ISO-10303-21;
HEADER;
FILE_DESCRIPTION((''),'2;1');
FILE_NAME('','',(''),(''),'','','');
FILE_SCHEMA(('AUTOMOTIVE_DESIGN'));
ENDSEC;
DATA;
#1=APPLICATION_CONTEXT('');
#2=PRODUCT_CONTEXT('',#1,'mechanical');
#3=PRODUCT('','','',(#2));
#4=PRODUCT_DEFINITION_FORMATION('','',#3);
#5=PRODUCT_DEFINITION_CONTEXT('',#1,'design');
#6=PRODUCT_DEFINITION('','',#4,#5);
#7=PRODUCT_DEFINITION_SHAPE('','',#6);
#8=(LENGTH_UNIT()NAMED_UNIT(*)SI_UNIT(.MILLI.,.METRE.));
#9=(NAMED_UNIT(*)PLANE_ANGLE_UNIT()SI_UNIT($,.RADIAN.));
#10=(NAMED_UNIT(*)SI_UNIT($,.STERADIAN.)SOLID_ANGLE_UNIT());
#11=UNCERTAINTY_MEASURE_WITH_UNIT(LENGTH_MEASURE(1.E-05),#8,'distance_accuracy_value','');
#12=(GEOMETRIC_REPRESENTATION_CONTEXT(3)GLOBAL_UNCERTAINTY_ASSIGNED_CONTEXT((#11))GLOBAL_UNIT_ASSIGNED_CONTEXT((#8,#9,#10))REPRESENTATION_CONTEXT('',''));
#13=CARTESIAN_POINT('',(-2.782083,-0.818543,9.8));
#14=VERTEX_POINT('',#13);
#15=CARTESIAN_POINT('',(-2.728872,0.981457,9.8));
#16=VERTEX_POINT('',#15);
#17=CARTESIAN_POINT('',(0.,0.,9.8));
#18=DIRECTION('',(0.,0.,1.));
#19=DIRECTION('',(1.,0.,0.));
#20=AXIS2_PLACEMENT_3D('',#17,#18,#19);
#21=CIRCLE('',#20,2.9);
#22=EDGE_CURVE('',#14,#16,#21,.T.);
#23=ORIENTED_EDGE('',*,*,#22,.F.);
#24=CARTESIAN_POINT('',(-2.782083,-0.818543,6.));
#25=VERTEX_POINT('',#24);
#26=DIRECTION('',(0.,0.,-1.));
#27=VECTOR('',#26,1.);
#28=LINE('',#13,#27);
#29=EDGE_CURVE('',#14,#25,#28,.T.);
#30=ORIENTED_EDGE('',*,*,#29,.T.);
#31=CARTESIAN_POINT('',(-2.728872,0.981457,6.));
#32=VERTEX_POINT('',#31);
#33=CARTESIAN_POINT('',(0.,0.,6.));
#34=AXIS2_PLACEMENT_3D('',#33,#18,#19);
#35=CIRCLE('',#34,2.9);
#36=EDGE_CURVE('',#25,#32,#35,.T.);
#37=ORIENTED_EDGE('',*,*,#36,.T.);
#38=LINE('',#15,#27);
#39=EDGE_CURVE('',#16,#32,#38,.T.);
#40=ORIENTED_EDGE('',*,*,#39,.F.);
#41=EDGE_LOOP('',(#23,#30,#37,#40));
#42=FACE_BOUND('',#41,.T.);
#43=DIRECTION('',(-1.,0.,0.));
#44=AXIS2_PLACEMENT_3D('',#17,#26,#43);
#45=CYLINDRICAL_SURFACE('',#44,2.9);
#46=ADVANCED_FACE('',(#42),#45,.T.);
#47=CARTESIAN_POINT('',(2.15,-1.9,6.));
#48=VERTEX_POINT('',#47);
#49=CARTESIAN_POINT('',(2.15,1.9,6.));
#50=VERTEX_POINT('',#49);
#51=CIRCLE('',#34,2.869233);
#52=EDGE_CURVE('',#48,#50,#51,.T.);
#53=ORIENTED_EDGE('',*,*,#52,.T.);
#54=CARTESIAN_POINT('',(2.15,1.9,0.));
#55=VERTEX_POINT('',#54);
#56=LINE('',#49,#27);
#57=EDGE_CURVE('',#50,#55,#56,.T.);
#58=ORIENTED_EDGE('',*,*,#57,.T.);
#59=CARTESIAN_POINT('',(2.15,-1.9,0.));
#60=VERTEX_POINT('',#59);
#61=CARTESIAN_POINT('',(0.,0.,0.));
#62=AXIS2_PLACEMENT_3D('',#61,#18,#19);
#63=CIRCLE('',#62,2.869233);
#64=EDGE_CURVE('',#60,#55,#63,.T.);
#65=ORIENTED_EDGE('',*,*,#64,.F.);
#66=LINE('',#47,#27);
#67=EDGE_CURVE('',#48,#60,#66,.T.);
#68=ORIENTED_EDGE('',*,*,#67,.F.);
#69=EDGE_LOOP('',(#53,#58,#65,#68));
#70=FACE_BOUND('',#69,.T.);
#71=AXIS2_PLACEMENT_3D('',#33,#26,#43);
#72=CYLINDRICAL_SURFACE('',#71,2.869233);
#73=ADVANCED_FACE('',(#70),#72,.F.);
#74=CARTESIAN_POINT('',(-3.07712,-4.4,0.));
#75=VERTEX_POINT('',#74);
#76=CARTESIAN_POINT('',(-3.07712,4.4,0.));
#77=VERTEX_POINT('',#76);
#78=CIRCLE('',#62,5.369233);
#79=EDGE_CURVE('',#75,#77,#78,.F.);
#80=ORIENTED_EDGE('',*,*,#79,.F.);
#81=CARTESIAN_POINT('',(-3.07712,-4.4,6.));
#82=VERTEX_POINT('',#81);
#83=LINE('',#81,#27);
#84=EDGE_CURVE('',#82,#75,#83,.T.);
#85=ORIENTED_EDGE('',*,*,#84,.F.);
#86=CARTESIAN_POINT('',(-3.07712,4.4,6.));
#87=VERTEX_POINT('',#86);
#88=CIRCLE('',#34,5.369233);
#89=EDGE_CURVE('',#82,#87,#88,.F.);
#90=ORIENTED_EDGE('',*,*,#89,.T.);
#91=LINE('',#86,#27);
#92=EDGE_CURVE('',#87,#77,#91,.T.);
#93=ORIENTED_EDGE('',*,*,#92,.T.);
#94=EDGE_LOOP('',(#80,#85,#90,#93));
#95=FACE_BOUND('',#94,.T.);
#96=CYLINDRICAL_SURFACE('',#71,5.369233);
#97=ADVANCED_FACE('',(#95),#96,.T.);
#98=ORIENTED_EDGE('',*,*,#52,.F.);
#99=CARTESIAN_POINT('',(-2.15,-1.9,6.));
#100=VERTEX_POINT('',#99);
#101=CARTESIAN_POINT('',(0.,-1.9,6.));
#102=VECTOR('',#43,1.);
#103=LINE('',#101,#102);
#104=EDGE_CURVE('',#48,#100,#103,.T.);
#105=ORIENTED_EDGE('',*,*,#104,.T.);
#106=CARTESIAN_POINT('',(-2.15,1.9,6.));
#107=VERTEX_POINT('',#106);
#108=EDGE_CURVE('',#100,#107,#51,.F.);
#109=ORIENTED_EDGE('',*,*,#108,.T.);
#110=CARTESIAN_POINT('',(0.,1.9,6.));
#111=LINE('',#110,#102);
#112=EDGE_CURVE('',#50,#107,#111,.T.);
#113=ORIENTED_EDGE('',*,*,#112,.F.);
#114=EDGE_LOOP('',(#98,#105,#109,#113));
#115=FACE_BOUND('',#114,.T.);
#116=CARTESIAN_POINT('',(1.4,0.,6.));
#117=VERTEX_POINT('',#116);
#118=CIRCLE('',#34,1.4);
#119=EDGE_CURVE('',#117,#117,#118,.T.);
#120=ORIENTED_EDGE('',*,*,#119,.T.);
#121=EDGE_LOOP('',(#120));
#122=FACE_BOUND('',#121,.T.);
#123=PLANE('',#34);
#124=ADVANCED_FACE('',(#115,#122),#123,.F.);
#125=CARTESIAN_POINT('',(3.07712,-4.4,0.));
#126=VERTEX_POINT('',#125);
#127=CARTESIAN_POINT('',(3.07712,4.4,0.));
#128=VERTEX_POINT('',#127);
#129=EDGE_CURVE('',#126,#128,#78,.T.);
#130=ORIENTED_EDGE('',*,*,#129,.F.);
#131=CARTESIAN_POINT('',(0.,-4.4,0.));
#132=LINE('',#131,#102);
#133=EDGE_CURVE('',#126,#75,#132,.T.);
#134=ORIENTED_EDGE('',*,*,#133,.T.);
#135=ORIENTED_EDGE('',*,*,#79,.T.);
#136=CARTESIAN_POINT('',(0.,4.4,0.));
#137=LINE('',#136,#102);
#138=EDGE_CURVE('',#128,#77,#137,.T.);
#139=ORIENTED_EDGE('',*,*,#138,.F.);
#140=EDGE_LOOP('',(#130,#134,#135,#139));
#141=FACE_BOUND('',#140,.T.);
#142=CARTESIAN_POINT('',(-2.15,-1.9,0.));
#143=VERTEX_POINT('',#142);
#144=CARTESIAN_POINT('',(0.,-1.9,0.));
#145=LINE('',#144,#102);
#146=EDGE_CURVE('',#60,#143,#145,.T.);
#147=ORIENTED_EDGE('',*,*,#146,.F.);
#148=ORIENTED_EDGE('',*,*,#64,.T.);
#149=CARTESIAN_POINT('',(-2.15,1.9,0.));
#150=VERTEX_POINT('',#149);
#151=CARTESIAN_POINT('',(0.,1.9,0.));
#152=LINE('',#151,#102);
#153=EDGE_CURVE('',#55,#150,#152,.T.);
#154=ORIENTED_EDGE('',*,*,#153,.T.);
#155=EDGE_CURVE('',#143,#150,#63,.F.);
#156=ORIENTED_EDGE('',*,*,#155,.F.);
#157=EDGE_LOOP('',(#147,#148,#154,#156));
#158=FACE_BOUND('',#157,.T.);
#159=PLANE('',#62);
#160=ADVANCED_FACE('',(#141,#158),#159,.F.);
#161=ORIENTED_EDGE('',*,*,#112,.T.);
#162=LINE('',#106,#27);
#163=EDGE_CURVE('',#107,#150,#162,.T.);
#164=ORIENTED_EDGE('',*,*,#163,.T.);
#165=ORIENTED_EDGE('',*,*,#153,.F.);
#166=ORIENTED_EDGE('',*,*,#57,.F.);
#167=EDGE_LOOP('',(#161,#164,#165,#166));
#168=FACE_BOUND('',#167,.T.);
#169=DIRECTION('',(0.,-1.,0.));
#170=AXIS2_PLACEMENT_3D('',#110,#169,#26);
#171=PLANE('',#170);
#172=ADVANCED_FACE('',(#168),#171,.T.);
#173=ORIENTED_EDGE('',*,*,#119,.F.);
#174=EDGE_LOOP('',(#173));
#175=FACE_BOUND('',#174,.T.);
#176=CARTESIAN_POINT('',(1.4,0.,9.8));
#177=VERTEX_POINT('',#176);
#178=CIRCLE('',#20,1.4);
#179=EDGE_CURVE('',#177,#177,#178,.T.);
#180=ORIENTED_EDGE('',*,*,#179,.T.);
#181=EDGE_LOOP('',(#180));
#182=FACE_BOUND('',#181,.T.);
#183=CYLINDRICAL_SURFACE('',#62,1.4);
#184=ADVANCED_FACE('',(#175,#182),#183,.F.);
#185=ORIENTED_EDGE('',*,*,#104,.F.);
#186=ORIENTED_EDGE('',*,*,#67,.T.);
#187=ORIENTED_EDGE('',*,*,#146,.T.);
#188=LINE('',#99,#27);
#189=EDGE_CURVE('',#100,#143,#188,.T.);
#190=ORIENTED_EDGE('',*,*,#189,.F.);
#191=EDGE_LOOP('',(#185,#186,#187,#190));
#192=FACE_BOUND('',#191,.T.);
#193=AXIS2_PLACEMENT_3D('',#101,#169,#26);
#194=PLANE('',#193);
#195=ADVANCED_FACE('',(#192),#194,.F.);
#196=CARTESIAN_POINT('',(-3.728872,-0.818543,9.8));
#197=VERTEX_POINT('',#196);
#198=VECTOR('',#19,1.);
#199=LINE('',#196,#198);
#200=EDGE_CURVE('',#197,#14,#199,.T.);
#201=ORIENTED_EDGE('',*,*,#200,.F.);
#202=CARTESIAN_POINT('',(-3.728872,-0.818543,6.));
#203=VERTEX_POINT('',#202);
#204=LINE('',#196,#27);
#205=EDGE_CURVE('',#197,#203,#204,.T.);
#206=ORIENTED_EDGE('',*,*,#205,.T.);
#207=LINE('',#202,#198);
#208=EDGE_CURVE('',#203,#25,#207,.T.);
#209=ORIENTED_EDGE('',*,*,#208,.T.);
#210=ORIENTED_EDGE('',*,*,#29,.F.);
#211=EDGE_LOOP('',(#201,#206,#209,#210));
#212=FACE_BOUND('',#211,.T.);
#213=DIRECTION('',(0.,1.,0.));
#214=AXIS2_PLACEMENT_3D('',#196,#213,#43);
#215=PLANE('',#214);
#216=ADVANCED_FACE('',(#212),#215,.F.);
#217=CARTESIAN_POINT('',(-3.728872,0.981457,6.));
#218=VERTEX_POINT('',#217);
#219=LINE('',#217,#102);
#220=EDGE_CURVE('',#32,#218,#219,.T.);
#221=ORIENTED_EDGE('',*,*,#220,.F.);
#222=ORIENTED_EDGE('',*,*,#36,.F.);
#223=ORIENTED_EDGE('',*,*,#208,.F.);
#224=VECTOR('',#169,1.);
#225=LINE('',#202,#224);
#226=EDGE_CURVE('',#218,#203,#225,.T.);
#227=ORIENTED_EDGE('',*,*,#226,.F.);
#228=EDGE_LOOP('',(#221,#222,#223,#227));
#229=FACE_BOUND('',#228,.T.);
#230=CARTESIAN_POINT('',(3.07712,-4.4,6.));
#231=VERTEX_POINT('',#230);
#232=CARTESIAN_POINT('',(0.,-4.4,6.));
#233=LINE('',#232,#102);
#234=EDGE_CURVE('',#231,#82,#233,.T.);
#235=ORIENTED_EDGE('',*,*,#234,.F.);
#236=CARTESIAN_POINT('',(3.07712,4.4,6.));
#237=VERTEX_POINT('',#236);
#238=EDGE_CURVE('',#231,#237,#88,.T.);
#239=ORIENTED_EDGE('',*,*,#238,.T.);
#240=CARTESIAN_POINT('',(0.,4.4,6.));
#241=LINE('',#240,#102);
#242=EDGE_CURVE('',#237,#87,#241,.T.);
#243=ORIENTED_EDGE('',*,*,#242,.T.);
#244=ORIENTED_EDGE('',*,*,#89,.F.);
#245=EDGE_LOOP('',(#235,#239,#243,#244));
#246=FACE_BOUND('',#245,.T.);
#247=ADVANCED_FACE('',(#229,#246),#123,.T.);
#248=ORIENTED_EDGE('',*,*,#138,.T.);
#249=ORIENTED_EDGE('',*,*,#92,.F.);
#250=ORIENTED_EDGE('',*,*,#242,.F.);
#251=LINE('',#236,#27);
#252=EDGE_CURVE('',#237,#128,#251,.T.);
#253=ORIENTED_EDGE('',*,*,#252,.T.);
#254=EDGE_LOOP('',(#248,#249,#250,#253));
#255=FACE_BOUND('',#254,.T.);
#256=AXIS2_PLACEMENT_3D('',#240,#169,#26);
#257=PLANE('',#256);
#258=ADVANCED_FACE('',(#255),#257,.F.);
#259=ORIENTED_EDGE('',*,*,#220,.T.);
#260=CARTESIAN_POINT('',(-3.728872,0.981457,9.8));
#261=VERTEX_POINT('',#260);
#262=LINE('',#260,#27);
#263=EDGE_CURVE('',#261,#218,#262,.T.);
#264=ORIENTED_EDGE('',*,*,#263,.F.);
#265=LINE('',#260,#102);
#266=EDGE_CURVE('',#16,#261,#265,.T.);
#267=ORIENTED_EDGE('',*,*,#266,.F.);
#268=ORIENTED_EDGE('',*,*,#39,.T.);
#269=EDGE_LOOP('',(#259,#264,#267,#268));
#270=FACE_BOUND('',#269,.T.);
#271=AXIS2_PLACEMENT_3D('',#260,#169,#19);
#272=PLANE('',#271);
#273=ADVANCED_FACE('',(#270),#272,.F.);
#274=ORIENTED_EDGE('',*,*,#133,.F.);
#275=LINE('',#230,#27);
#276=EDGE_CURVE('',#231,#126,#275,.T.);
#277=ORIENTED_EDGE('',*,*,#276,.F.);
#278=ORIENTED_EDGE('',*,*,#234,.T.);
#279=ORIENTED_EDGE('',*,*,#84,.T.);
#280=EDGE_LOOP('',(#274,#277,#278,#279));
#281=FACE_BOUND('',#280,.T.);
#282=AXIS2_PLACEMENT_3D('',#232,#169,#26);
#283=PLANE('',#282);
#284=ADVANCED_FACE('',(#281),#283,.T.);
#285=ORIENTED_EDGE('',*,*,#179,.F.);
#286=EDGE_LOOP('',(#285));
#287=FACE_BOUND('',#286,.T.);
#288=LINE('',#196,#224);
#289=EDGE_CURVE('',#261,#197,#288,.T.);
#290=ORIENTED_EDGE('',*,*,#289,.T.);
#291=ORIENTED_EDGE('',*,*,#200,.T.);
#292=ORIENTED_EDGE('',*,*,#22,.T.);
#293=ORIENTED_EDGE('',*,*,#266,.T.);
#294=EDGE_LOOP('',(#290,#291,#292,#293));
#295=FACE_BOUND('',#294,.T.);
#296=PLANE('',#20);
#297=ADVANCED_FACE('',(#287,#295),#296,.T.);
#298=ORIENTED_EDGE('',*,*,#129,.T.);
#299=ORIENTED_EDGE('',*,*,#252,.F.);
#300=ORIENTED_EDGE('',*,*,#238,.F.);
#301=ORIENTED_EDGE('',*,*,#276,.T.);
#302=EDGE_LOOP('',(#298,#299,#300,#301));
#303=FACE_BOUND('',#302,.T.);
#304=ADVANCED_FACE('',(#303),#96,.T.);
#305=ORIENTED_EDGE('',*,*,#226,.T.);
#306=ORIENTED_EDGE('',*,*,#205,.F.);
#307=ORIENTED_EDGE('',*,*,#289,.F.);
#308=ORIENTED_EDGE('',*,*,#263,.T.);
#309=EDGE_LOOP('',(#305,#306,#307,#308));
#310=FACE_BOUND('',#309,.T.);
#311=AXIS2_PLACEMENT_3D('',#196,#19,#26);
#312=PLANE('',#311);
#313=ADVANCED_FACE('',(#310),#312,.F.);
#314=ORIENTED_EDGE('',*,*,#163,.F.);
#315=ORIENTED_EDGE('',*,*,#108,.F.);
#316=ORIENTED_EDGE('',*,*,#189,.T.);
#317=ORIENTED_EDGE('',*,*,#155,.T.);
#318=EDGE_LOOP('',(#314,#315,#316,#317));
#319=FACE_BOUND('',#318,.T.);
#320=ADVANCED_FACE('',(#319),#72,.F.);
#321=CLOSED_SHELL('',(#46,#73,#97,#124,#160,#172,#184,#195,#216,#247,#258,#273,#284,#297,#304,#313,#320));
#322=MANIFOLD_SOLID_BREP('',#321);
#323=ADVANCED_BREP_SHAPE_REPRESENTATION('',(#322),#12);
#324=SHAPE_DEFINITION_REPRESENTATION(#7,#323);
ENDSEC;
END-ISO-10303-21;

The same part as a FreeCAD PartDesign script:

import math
import FreeCAD as App
import Part
import Sketcher

V = App.Vector

doc = App.newDocument("Part")
body = doc.addObject("PartDesign::Body", "Body")

sketch1 = body.newObject("Sketcher::SketchObject", "Sketch")
sketch1.AttachmentSupport = (doc.getObject("XY_Plane"), [""])
sketch1.MapMode = "FlatFace"
sketch1.addGeometry(Part.LineSegment(V(-3.07712, -4.4, 0), V(3.07712, -4.4, 0)), False)
sketch1.addGeometry(Part.ArcOfCircle(Part.Circle(V(0, 0, 0), V(0, 0, 1), 5.369233), math.radians(-55.033158), math.radians(55.033158)), False)
sketch1.addGeometry(Part.LineSegment(V(3.07712, 4.4, 0), V(-3.07712, 4.4, 0)), False)
sketch1.addGeometry(Part.ArcOfCircle(Part.Circle(V(0, 0, 0), V(0, 0, 1), 5.369233), math.radians(124.966842), math.radians(235.033158)), False)
sketch1.addGeometry(Part.LineSegment(V(2.15, -1.9, 0), V(-2.15, -1.9, 0)), False)
sketch1.addGeometry(Part.ArcOfCircle(Part.Circle(V(0, 0, 0), V(0, 0, 1), 2.869233), math.radians(138.532295), math.radians(221.467705)), False)
sketch1.addGeometry(Part.LineSegment(V(-2.15, 1.9, 0), V(2.15, 1.9, 0)), False)
sketch1.addGeometry(Part.ArcOfCircle(Part.Circle(V(0, 0, 0), V(0, 0, 1), 2.869233), math.radians(-41.467705), math.radians(41.467705)), False)
sketch1.addConstraint(Sketcher.Constraint("Coincident", 0, 2, 1, 1))
sketch1.addConstraint(Sketcher.Constraint("Coincident", 1, 2, 2, 1))
sketch1.addConstraint(Sketcher.Constraint("Coincident", 2, 2, 3, 1))
sketch1.addConstraint(Sketcher.Constraint("Coincident", 3, 2, 0, 1))
sketch1.addConstraint(Sketcher.Constraint("Coincident", 4, 2, 5, 2))
sketch1.addConstraint(Sketcher.Constraint("Coincident", 5, 1, 6, 1))
sketch1.addConstraint(Sketcher.Constraint("Coincident", 6, 2, 7, 2))
sketch1.addConstraint(Sketcher.Constraint("Coincident", 7, 1, 4, 1))
sketch1.addConstraint(Sketcher.Constraint("Horizontal", 0))
sketch1.addConstraint(Sketcher.Constraint("Horizontal", 2))
sketch1.addConstraint(Sketcher.Constraint("Horizontal", 4))
sketch1.addConstraint(Sketcher.Constraint("Horizontal", 6))
sketch1.addConstraint(Sketcher.Constraint("Coincident", 1, 3, -1, 1))
sketch1.addConstraint(Sketcher.Constraint("Coincident", 3, 3, -1, 1))
sketch1.addConstraint(Sketcher.Constraint("Coincident", 5, 3, -1, 1))
sketch1.addConstraint(Sketcher.Constraint("Coincident", 7, 3, -1, 1))
sketch1.addConstraint(Sketcher.Constraint("Equal", 1, 3))
sketch1.addConstraint(Sketcher.Constraint("Equal", 5, 7))
sketch1.addConstraint(Sketcher.Constraint("Vertical", 0, 2, 1, 2))
sketch1.addConstraint(Sketcher.Constraint("Vertical", 4, 2, 5, 1))
sketch1.addConstraint(Sketcher.Constraint("DistanceX", 4, 2, 4, 1, 4.3))
sketch1.addConstraint(Sketcher.Constraint("DistanceY", 0, 2, -1, 1, 4.4))
sketch1.addConstraint(Sketcher.Constraint("DistanceY", 4, 2, -1, 1, 1.9))
sketch1.addConstraint(Sketcher.Constraint("Radius", 1, 5.369233))
pad1 = body.newObject("PartDesign::Pad", "Pad")
pad1.Profile = sketch1
pad1.Length = 6

sketch2 = body.newObject("Sketcher::SketchObject", "Sketch001")
sketch2.AttachmentSupport = (doc.getObject("XY_Plane"), [""])
sketch2.MapMode = "FlatFace"
sketch2.AttachmentOffset = App.Placement(V(0, 0, 6), App.Rotation())
sketch2.addGeometry(Part.LineSegment(V(-3.728872, 0.981457, 0), V(-3.728872, -0.818543, 0)), False)
sketch2.addGeometry(Part.LineSegment(V(-3.728872, -0.818543, 0), V(-2.782083, -0.818543, 0)), False)
sketch2.addGeometry(Part.ArcOfCircle(Part.Circle(V(0, 0, 0), V(0, 0, 1), 2.9), math.radians(-163.605083), math.radians(160.218549)), False)
sketch2.addGeometry(Part.LineSegment(V(-2.728872, 0.981457, 0), V(-3.728872, 0.981457, 0)), False)
sketch2.addConstraint(Sketcher.Constraint("Coincident", 0, 2, 1, 1))
sketch2.addConstraint(Sketcher.Constraint("Coincident", 1, 2, 2, 1))
sketch2.addConstraint(Sketcher.Constraint("Coincident", 2, 2, 3, 1))
sketch2.addConstraint(Sketcher.Constraint("Coincident", 3, 2, 0, 1))
sketch2.addConstraint(Sketcher.Constraint("Vertical", 0))
sketch2.addConstraint(Sketcher.Constraint("Horizontal", 1))
sketch2.addConstraint(Sketcher.Constraint("Horizontal", 3))
sketch2.addConstraint(Sketcher.Constraint("Coincident", 2, 3, -1, 1))
sketch2.addConstraint(Sketcher.Constraint("Radius", 2, 2.9))
sketch2.addConstraint(Sketcher.Constraint("DistanceX", 3, 2, 3, 1, 1.0))
sketch2.addConstraint(Sketcher.Constraint("DistanceY", 0, 2, 0, 1, 1.8))
sketch2.addConstraint(Sketcher.Constraint("DistanceX", 1, 1, 1, 2, 0.946789))
pad2 = body.newObject("PartDesign::Pad", "Pad001")
pad2.Profile = sketch2
pad2.Length = 3.8

sketch3 = body.newObject("Sketcher::SketchObject", "Sketch002")
sketch3.AttachmentSupport = (doc.getObject("XY_Plane"), [""])
sketch3.MapMode = "FlatFace"
sketch3.AttachmentOffset = App.Placement(V(0, 0, 9.8), App.Rotation())
sketch3.addGeometry(Part.Circle(V(0, 0, 0), V(0, 0, 1), 1.4), False)
sketch3.addConstraint(Sketcher.Constraint("Coincident", 0, 3, -1, 1))
sketch3.addConstraint(Sketcher.Constraint("Diameter", 0, 2.8))
pocket1 = body.newObject("PartDesign::Pocket", "Pocket")
pocket1.Profile = sketch3
pocket1.Type = "ThroughAll"

doc.recompute()
